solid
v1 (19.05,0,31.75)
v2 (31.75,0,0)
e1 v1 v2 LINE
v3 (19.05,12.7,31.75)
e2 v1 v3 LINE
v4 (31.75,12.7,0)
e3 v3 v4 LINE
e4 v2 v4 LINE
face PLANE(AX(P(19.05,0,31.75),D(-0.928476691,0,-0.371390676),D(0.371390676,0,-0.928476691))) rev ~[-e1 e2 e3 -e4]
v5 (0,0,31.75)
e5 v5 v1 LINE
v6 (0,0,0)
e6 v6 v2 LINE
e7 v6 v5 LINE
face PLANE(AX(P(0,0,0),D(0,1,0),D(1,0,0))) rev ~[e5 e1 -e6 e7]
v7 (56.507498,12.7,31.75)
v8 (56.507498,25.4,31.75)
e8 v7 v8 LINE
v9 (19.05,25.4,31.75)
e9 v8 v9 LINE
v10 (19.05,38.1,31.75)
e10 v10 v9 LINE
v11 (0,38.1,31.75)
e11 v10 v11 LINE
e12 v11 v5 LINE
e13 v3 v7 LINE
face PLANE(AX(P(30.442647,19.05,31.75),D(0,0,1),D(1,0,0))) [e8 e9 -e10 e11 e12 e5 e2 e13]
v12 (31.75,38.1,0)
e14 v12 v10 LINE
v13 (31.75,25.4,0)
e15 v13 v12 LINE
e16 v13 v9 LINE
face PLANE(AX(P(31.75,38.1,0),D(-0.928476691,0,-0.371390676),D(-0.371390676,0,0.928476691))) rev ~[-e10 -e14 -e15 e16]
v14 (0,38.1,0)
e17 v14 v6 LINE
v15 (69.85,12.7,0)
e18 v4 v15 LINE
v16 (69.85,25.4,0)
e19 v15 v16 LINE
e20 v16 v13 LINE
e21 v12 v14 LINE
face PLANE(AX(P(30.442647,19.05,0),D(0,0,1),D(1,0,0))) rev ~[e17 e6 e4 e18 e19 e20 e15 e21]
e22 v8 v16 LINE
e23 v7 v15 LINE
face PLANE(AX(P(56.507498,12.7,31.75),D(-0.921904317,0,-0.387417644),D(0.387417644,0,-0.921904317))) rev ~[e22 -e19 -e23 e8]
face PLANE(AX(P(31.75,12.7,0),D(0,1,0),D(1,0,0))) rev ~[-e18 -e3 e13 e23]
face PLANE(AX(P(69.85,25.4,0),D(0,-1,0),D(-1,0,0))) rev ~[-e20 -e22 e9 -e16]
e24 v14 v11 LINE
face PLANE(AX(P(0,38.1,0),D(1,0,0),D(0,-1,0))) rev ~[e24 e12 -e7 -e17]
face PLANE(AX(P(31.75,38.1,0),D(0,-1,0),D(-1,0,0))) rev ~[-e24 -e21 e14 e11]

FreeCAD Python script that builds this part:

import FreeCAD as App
import Part
import Sketcher

V = App.Vector
Q = App.Units.Quantity


def add_polygon(sketch, points):
    """Adds a closed chain of lines whose ends are joined by coincident constraints."""
    first, n = sketch.GeometryCount, len(points)
    for a, b in zip(points, points[1:] + points[:1]):
        sketch.addGeometry(Part.LineSegment(App.Vector(*a, 0), App.Vector(*b, 0)), False)
    for i in range(n):
        sketch.addConstraint(Sketcher.Constraint("Coincident", first + i, 2, first + (i + 1) % n, 1))

doc = App.newDocument("Part")
body = doc.addObject("PartDesign::Body", "Body")

# Sketch on XY plane
sketch1 = doc.addObject("Sketcher::SketchObject", "Sketch")
body.addObject(sketch1)
sketch1.AttachmentSupport = (doc.XY_Plane, [""])
sketch1.MapMode = "FlatFace"
add_polygon(sketch1, [(0, 38), (0, 0), (32, 0), (32, 13), (70, 13), (70, 25), (32, 25), (32, 38)])  # lines 0-7
sketch1.addConstraint([
    Sketcher.Constraint("Vertical", 0),
    Sketcher.Constraint("Horizontal", 1),
    Sketcher.Constraint("Vertical", 2),
    Sketcher.Constraint("Horizontal", 3),
    Sketcher.Constraint("Vertical", 4),
    Sketcher.Constraint("Horizontal", 5),
    Sketcher.Constraint("Vertical", 6),
    Sketcher.Constraint("Horizontal", 7),
    Sketcher.Constraint("Coincident", 0, 2, -1, 1),
    Sketcher.Constraint("Vertical", 2, 2, 5, 2),
    Sketcher.Constraint("Equal", 5, 0),
    Sketcher.Constraint("Equal", 2, 4),
    Sketcher.Constraint("Equal", 4, 6),
    Sketcher.Constraint("DistanceX", 3, 1, 3, 2, Q("1.5 in")),
    Sketcher.Constraint("DistanceX", 1, 1, 1, 2, Q("1.25 in")),
])
pad1 = doc.addObject("PartDesign::Pad", "Pad")
body.addObject(pad1)
pad1.Profile = sketch1
pad1.Length = Q("1.25 in")

# Sketch on XZ plane
sketch2 = doc.addObject("Sketcher::SketchObject", "Sketch001")
body.addObject(sketch2)
sketch2.AttachmentSupport = (doc.XZ_Plane, [""])
sketch2.MapMode = "FlatFace"
sketch2.AttachmentOffset = App.Placement(V(0, 0, -0.5 * 25.4), App.Rotation())
add_polygon(sketch2, [(70, 32), (57, 32), (70, 0)])  # lines 0-2
sketch2.addConstraint([
    Sketcher.Constraint("Horizontal", 0),
    Sketcher.Constraint("Vertical", 2),
    Sketcher.Constraint("PointOnObject", 1, 2, -1),
    Sketcher.Constraint("DistanceY", 2, 1, 2, 2, Q("1.25 in")),
    Sketcher.Constraint("DistanceX", -1, 1, 1, 2, Q("2.75 in")),
    Sketcher.Constraint("DistanceX", 0, 2, 0, 1, Q("13.342502 mm")),
])
pocket1 = doc.addObject("PartDesign::Pocket", "Pocket")
body.addObject(pocket1)
pocket1.Profile = sketch2
pocket1.Length = Q("1 in")

# Sketch on XZ plane
sketch3 = doc.addObject("Sketcher::SketchObject", "Sketch002")
body.addObject(sketch3)
sketch3.AttachmentSupport = (doc.XZ_Plane, [""])
sketch3.MapMode = "FlatFace"
add_polygon(sketch3, [(32, 32), (19, 32), (32, 0)])  # lines 0-2
sketch3.addConstraint([
    Sketcher.Constraint("Horizontal", 0),
    Sketcher.Constraint("Vertical", 2),
    Sketcher.Constraint("PointOnObject", 1, 2, -1),
    Sketcher.Constraint("DistanceX", 0, 2, 0, 1, Q("0.5 in")),
    Sketcher.Constraint("DistanceY", 2, 1, 2, 2, Q("1.25 in")),
    Sketcher.Constraint("DistanceX", -1, 1, 0, 2, Q("0.75 in")),
])
pocket2 = doc.addObject("PartDesign::Pocket", "Pocket001")
body.addObject(pocket2)
pocket2.Profile = sketch3
pocket2.Length = Q("0.5 in")

# Sketch on XZ plane
sketch4 = doc.addObject("Sketcher::SketchObject", "Sketch003")
body.addObject(sketch4)
sketch4.AttachmentSupport = (doc.XZ_Plane, [""])
sketch4.MapMode = "FlatFace"
sketch4.AttachmentOffset = App.Placement(V(0, 0, -1.5 * 25.4), App.Rotation())
add_polygon(sketch4, [(32, 32), (32, 0), (19, 32)])  # lines 0-2
sketch4.addConstraint([
    Sketcher.Constraint("Vertical", 0),
    Sketcher.Constraint("Horizontal", 2),
    Sketcher.Constraint("PointOnObject", 0, 2, -1),
    Sketcher.Constraint("DistanceX", 2, 1, 2, 2, Q("0.5 in")),
    Sketcher.Constraint("DistanceY", 0, 2, 0, 1, Q("1.25 in")),
    Sketcher.Constraint("DistanceX", -1, 1, 0, 2, Q("1.25 in")),
])
pocket3 = doc.addObject("PartDesign::Pocket", "Pocket002")
body.addObject(pocket3)
pocket3.Profile = sketch4
pocket3.Length = Q("0.5 in")
pocket3.Reversed = True

doc.recompute()
